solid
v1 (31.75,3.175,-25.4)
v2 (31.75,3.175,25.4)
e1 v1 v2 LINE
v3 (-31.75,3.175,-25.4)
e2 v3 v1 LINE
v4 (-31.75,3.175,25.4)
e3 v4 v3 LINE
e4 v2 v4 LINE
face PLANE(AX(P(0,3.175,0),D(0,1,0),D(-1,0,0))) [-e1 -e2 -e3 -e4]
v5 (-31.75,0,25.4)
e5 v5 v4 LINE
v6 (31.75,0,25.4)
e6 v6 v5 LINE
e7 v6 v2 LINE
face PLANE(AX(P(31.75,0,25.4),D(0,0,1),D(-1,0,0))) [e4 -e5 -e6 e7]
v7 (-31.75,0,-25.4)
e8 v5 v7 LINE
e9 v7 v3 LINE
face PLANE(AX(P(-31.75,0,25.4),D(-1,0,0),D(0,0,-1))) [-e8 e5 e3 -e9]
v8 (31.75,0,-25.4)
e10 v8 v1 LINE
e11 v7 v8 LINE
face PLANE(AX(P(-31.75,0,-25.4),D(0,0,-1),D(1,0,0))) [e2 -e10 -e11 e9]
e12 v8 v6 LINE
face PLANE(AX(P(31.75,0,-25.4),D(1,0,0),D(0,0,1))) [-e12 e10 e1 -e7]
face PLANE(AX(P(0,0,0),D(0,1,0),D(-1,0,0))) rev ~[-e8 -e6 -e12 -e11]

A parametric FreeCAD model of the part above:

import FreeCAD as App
import Part
import Sketcher
from FreeCAD import Vector
Q = App.Units.Quantity

doc = App.newDocument("Part")
params = doc.addObject("Spreadsheet::Sheet", "Params")
for row, (alias, value) in enumerate([
    ("sketch1_height", "2 in"),
    ("sketch1_width", "2.5 in"),
    ("pad1_length", "0.125 in"),
], start=1):
    params.set(f"A{row}", alias)
    params.set(f"B{row}", "=" + value)
    params.setAlias(f"B{row}", alias)

body = doc.addObject("PartDesign::Body", "Body")

# Sketch on XZ plane
sketch1 = body.newObject("Sketcher::SketchObject", "Sketch")
sketch1.AttachmentSupport = (doc.getObject("XZ_Plane"), [""])
sketch1.MapMode = "FlatFace"
sketch1.addGeometry([
    Part.LineSegment(Vector(-32, 25, 0), Vector(32, 25, 0)),
    Part.LineSegment(Vector(32, 25, 0), Vector(32, -25, 0)),
    Part.LineSegment(Vector(32, -25, 0), Vector(-32, -25, 0)),
    Part.LineSegment(Vector(-32, -25, 0), Vector(-32, 25, 0)),
], False)
sketch1.addConstraint([
    Sketcher.Constraint("Coincident", 0, 2, 1, 1),
    Sketcher.Constraint("Coincident", 1, 2, 2, 1),
    Sketcher.Constraint("Coincident", 2, 2, 3, 1),
    Sketcher.Constraint("Coincident", 3, 2, 0, 1),
    Sketcher.Constraint("Horizontal", 0),
    Sketcher.Constraint("Vertical", 1),
    Sketcher.Constraint("Horizontal", 2),
    Sketcher.Constraint("Vertical", 3),
    Sketcher.Constraint("Symmetric", 0, 2, 2, 2, -1, 1),
    Sketcher.Constraint("DistanceY", 1, 2, 1, 1, Q("2 in")),
    Sketcher.Constraint("DistanceX", 0, 1, 0, 2, Q("2.5 in")),
])
sketch1.setExpression("Constraints[9]", "Params.sketch1_height")
sketch1.setExpression("Constraints[10]", "Params.sketch1_width")
pad1 = body.newObject("PartDesign::Pad", "Pad")
pad1.Profile = sketch1
pad1.setExpression("Length", "Params.pad1_length")
pad1.Reversed = True

doc.recompute()
